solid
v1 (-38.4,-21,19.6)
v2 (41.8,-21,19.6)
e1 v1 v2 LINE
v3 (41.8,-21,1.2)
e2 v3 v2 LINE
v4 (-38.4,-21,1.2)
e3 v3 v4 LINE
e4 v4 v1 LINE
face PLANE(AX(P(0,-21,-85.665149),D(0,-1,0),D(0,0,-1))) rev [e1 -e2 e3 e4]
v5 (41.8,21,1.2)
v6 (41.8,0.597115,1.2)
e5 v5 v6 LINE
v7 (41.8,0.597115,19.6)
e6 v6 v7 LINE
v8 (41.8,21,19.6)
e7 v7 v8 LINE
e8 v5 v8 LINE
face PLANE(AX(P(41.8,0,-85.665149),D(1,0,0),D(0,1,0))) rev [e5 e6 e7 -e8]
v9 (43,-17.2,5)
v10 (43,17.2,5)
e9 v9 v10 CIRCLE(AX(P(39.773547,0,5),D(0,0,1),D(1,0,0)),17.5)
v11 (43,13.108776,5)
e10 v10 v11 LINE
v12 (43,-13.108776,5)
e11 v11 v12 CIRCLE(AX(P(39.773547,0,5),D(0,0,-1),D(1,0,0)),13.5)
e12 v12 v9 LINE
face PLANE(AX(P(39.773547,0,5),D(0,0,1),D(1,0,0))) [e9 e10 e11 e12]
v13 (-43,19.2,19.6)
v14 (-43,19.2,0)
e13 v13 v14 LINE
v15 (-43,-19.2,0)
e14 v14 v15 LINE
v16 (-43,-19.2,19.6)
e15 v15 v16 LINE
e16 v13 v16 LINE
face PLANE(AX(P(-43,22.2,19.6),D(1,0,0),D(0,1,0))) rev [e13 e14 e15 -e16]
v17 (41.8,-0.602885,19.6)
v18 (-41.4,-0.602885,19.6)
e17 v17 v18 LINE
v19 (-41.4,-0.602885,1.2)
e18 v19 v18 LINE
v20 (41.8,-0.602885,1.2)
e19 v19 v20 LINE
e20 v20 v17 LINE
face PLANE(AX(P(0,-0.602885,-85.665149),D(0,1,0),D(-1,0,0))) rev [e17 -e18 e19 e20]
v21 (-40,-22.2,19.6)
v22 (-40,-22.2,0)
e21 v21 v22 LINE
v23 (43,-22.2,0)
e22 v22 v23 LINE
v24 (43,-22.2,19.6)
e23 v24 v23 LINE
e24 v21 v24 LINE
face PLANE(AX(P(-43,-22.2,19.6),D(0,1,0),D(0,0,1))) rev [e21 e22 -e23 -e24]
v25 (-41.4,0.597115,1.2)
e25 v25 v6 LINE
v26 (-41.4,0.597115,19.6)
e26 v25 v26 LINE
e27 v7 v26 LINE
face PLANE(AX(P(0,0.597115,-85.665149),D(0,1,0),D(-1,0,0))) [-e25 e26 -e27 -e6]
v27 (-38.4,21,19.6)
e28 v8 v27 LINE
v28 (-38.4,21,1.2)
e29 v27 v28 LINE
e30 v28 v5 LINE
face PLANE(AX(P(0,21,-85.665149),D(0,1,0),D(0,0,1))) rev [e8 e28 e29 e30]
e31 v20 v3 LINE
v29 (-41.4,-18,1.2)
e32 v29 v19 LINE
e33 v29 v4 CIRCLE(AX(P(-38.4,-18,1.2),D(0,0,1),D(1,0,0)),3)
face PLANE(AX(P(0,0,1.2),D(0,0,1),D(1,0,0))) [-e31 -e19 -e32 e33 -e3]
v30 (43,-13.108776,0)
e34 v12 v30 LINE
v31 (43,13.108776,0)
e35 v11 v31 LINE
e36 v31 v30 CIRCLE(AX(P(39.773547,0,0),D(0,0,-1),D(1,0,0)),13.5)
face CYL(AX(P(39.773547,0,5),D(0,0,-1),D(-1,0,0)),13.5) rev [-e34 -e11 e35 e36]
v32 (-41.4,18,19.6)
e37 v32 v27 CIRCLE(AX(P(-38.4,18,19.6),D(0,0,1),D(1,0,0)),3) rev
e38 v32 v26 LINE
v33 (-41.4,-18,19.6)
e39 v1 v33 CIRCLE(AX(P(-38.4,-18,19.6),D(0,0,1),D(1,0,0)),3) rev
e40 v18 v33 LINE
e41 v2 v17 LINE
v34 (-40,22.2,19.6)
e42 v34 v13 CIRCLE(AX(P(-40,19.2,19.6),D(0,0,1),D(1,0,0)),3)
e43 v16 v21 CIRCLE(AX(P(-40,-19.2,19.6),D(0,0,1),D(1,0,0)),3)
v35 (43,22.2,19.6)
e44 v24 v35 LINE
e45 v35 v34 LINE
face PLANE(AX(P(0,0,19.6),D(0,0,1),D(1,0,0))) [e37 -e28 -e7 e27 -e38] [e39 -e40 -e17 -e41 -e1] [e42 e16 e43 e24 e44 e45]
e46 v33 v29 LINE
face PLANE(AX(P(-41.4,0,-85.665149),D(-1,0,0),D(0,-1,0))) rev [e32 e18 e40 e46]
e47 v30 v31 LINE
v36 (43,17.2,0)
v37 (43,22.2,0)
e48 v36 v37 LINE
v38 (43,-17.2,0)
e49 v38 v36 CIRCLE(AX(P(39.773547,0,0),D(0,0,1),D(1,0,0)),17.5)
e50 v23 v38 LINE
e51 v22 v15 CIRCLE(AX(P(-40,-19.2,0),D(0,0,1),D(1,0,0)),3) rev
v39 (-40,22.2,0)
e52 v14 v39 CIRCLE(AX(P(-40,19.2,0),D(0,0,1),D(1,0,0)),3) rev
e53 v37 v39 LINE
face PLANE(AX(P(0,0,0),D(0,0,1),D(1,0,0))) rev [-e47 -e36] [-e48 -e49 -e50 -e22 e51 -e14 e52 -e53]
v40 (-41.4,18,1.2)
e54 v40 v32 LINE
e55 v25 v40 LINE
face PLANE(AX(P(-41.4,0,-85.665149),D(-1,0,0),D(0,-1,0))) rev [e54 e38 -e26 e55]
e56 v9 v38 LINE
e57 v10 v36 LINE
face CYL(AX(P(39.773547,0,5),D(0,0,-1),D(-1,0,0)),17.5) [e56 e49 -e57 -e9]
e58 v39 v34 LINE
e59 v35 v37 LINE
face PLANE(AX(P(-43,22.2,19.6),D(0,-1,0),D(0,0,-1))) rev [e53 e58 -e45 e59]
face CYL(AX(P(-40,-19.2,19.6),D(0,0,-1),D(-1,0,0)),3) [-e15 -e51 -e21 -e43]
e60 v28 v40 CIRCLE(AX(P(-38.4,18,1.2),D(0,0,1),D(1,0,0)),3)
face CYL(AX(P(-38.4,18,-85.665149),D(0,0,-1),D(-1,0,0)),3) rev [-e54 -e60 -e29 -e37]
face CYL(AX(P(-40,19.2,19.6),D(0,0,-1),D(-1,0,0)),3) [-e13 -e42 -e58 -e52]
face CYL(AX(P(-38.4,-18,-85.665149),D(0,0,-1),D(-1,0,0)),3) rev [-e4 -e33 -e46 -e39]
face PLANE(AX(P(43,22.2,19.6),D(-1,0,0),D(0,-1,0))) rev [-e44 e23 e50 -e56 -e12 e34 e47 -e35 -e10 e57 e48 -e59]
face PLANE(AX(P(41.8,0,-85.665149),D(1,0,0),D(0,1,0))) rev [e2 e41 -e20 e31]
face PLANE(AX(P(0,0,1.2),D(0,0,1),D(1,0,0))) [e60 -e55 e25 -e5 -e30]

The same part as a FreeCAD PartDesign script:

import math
import FreeCAD as App
import Part
import Sketcher
Q = App.Units.Quantity


def edges_at(feature, points):
    """Names of the edges that pass closest to the given points."""
    edges = feature.Shape.Edges
    near = lambda p: min(range(len(edges)), key=lambda i: edges[i].distToShape(Part.Vertex(*p))[0])
    return sorted({f"Edge{near(p) + 1}" for p in points})

doc = App.newDocument("Part")
body = doc.addObject("PartDesign::Body", "Body")

# Sketch on XY plane
sketch1 = doc.addObject("Sketcher::SketchObject", "Sketch")
body.addObject(sketch1)
sketch1.AttachmentSupport = (doc.XY_Plane, [""])
sketch1.MapMode = "FlatFace"
sketch1.addGeometry([
    Part.LineSegment(App.Vector(-43, 22, 0), App.Vector(-43, -22, 0)),
    Part.LineSegment(App.Vector(-43, -22, 0), App.Vector(43, -22, 0)),
    Part.LineSegment(App.Vector(43, -22, 0), App.Vector(43, 22, 0)),
    Part.LineSegment(App.Vector(43, 22, 0), App.Vector(-43, 22, 0)),
], False)
sketch1.addConstraint([
    Sketcher.Constraint("Coincident", 0, 2, 1, 1),
    Sketcher.Constraint("Coincident", 1, 2, 2, 1),
    Sketcher.Constraint("Coincident", 2, 2, 3, 1),
    Sketcher.Constraint("Coincident", 3, 2, 0, 1),
    Sketcher.Constraint("Vertical", 0),
    Sketcher.Constraint("Horizontal", 1),
    Sketcher.Constraint("Vertical", 2),
    Sketcher.Constraint("Horizontal", 3),
    Sketcher.Constraint("Symmetric", 0, 2, 2, 2, -1, 1),
    Sketcher.Constraint("DistanceX", 1, 1, 1, 2, Q("86 mm")),
    Sketcher.Constraint("DistanceY", 0, 2, 0, 1, Q("44.4 mm")),
])
pad1 = doc.addObject("PartDesign::Pad", "Pad")
body.addObject(pad1)
pad1.Profile = sketch1
pad1.Length = 19.6

# Sketch on XY plane
sketch2 = doc.addObject("Sketcher::SketchObject", "Sketch001")
body.addObject(sketch2)
sketch2.AttachmentSupport = (doc.XY_Plane, [""])
sketch2.MapMode = "FlatFace"
sketch2.addGeometry([
    Part.LineSegment(App.Vector(43, 17.2, 0), App.Vector(43, 13.1, 0)),
    Part.ArcOfCircle(Part.Circle(App.Vector(39.8, 0, 0), App.Vector(0, 0, 1), 13.5), math.radians(-76), math.radians(76)),
    Part.LineSegment(App.Vector(43, -13.1, 0), App.Vector(43, -17.2, 0)),
    Part.ArcOfCircle(Part.Circle(App.Vector(39.8, 0, 0), App.Vector(0, 0, 1), 17.5), math.radians(-79), math.radians(79)),
], False)
sketch2.addConstraint([
    Sketcher.Constraint("Coincident", 0, 2, 1, 2),
    Sketcher.Constraint("Coincident", 1, 1, 2, 1),
    Sketcher.Constraint("Coincident", 2, 2, 3, 1),
    Sketcher.Constraint("Coincident", 3, 2, 0, 1),
    Sketcher.Constraint("Vertical", 0),
    Sketcher.Constraint("Vertical", 2),
    Sketcher.Constraint("Coincident", 3, 3, 1, 3),
    Sketcher.Constraint("Symmetric", 0, 2, 1, 1, -1),
    Sketcher.Constraint("Radius", 1, Q("13.5 mm")),
    Sketcher.Constraint("Radius", 3, Q("17.5 mm")),
    Sketcher.Constraint("DistanceX", -1, 1, 0, 2, Q("43 mm")),
    Sketcher.Constraint("DistanceY", 2, 2, -1, 1, Q("17.2 mm")),
])
pad2 = doc.addObject("PartDesign::Pad", "Pad001")
body.addObject(pad2)
pad2.Profile = sketch2
pad2.Length = 5

# Sketch on XY plane
sketch3 = doc.addObject("Sketcher::SketchObject", "Sketch002")
body.addObject(sketch3)
sketch3.AttachmentSupport = (doc.XY_Plane, [""])
sketch3.MapMode = "FlatFace"
sketch3.AttachmentOffset = App.Placement(App.Vector(0, 0, 19.6), App.Rotation())
sketch3.addGeometry([
    Part.LineSegment(App.Vector(-41, 21, 0), App.Vector(-41, 1, 0)),  # 0
    Part.LineSegment(App.Vector(-41, 1, 0), App.Vector(42, 1, 0)),  # 1
    Part.LineSegment(App.Vector(42, 1, 0), App.Vector(42, 21, 0)),  # 2
    Part.LineSegment(App.Vector(42, 21, 0), App.Vector(-41, 21, 0)),  # 3
    Part.LineSegment(App.Vector(-41, -1, 0), App.Vector(-41, -21, 0)),  # 4
    Part.LineSegment(App.Vector(-41, -21, 0), App.Vector(42, -21, 0)),  # 5
    Part.LineSegment(App.Vector(42, -21, 0), App.Vector(42, -1, 0)),  # 6
    Part.LineSegment(App.Vector(42, -1, 0), App.Vector(-41, -1, 0)),  # 7
], False)
sketch3.addConstraint([
    Sketcher.Constraint("Coincident", 0, 2, 1, 1),
    Sketcher.Constraint("Coincident", 1, 2, 2, 1),
    Sketcher.Constraint("Coincident", 2, 2, 3, 1),
    Sketcher.Constraint("Coincident", 3, 2, 0, 1),
    Sketcher.Constraint("Coincident", 4, 2, 5, 1),
    Sketcher.Constraint("Coincident", 5, 2, 6, 1),
    Sketcher.Constraint("Coincident", 6, 2, 7, 1),
    Sketcher.Constraint("Coincident", 7, 2, 4, 1),
    Sketcher.Constraint("Vertical", 0),
    Sketcher.Constraint("Horizontal", 1),
    Sketcher.Constraint("Vertical", 2),
    Sketcher.Constraint("Horizontal", 3),
    Sketcher.Constraint("Vertical", 4),
    Sketcher.Constraint("Horizontal", 5),
    Sketcher.Constraint("Vertical", 6),
    Sketcher.Constraint("Horizontal", 7),
    Sketcher.Constraint("Symmetric", 3, 2, 4, 2, -1),
    Sketcher.Constraint("Vertical", 2, 2, 5, 2),
    Sketcher.Constraint("DistanceX", 1, 1, 1, 2, Q("83.2 mm")),
    Sketcher.Constraint("DistanceY", -1, 1, 2, 2, Q("21 mm")),
    Sketcher.Constraint("DistanceX", 0, 2, -1, 1, Q("41.4 mm")),
    Sketcher.Constraint("DistanceY", 6, 2, 1, 2, Q("1.2 mm")),
    Sketcher.Constraint("DistanceY", 0, 2, 0, 1, Q("20.402885 mm")),
])
pocket1 = doc.addObject("PartDesign::Pocket", "Pocket")
body.addObject(pocket1)
pocket1.Profile = sketch3
pocket1.Length = 18.4
doc.recompute()

fillet = doc.addObject("PartDesign::Fillet", "Fillet")
body.addObject(fillet)
fillet.Base = (pocket1, edges_at(pocket1, [
    (-41.4, 21, 10.4),
    (-41.4, -21, 10.4),
    (-43, -22.2, 9.8),
    (-43, 22.2, 9.8),
]))
fillet.Radius = 3

doc.recompute()
